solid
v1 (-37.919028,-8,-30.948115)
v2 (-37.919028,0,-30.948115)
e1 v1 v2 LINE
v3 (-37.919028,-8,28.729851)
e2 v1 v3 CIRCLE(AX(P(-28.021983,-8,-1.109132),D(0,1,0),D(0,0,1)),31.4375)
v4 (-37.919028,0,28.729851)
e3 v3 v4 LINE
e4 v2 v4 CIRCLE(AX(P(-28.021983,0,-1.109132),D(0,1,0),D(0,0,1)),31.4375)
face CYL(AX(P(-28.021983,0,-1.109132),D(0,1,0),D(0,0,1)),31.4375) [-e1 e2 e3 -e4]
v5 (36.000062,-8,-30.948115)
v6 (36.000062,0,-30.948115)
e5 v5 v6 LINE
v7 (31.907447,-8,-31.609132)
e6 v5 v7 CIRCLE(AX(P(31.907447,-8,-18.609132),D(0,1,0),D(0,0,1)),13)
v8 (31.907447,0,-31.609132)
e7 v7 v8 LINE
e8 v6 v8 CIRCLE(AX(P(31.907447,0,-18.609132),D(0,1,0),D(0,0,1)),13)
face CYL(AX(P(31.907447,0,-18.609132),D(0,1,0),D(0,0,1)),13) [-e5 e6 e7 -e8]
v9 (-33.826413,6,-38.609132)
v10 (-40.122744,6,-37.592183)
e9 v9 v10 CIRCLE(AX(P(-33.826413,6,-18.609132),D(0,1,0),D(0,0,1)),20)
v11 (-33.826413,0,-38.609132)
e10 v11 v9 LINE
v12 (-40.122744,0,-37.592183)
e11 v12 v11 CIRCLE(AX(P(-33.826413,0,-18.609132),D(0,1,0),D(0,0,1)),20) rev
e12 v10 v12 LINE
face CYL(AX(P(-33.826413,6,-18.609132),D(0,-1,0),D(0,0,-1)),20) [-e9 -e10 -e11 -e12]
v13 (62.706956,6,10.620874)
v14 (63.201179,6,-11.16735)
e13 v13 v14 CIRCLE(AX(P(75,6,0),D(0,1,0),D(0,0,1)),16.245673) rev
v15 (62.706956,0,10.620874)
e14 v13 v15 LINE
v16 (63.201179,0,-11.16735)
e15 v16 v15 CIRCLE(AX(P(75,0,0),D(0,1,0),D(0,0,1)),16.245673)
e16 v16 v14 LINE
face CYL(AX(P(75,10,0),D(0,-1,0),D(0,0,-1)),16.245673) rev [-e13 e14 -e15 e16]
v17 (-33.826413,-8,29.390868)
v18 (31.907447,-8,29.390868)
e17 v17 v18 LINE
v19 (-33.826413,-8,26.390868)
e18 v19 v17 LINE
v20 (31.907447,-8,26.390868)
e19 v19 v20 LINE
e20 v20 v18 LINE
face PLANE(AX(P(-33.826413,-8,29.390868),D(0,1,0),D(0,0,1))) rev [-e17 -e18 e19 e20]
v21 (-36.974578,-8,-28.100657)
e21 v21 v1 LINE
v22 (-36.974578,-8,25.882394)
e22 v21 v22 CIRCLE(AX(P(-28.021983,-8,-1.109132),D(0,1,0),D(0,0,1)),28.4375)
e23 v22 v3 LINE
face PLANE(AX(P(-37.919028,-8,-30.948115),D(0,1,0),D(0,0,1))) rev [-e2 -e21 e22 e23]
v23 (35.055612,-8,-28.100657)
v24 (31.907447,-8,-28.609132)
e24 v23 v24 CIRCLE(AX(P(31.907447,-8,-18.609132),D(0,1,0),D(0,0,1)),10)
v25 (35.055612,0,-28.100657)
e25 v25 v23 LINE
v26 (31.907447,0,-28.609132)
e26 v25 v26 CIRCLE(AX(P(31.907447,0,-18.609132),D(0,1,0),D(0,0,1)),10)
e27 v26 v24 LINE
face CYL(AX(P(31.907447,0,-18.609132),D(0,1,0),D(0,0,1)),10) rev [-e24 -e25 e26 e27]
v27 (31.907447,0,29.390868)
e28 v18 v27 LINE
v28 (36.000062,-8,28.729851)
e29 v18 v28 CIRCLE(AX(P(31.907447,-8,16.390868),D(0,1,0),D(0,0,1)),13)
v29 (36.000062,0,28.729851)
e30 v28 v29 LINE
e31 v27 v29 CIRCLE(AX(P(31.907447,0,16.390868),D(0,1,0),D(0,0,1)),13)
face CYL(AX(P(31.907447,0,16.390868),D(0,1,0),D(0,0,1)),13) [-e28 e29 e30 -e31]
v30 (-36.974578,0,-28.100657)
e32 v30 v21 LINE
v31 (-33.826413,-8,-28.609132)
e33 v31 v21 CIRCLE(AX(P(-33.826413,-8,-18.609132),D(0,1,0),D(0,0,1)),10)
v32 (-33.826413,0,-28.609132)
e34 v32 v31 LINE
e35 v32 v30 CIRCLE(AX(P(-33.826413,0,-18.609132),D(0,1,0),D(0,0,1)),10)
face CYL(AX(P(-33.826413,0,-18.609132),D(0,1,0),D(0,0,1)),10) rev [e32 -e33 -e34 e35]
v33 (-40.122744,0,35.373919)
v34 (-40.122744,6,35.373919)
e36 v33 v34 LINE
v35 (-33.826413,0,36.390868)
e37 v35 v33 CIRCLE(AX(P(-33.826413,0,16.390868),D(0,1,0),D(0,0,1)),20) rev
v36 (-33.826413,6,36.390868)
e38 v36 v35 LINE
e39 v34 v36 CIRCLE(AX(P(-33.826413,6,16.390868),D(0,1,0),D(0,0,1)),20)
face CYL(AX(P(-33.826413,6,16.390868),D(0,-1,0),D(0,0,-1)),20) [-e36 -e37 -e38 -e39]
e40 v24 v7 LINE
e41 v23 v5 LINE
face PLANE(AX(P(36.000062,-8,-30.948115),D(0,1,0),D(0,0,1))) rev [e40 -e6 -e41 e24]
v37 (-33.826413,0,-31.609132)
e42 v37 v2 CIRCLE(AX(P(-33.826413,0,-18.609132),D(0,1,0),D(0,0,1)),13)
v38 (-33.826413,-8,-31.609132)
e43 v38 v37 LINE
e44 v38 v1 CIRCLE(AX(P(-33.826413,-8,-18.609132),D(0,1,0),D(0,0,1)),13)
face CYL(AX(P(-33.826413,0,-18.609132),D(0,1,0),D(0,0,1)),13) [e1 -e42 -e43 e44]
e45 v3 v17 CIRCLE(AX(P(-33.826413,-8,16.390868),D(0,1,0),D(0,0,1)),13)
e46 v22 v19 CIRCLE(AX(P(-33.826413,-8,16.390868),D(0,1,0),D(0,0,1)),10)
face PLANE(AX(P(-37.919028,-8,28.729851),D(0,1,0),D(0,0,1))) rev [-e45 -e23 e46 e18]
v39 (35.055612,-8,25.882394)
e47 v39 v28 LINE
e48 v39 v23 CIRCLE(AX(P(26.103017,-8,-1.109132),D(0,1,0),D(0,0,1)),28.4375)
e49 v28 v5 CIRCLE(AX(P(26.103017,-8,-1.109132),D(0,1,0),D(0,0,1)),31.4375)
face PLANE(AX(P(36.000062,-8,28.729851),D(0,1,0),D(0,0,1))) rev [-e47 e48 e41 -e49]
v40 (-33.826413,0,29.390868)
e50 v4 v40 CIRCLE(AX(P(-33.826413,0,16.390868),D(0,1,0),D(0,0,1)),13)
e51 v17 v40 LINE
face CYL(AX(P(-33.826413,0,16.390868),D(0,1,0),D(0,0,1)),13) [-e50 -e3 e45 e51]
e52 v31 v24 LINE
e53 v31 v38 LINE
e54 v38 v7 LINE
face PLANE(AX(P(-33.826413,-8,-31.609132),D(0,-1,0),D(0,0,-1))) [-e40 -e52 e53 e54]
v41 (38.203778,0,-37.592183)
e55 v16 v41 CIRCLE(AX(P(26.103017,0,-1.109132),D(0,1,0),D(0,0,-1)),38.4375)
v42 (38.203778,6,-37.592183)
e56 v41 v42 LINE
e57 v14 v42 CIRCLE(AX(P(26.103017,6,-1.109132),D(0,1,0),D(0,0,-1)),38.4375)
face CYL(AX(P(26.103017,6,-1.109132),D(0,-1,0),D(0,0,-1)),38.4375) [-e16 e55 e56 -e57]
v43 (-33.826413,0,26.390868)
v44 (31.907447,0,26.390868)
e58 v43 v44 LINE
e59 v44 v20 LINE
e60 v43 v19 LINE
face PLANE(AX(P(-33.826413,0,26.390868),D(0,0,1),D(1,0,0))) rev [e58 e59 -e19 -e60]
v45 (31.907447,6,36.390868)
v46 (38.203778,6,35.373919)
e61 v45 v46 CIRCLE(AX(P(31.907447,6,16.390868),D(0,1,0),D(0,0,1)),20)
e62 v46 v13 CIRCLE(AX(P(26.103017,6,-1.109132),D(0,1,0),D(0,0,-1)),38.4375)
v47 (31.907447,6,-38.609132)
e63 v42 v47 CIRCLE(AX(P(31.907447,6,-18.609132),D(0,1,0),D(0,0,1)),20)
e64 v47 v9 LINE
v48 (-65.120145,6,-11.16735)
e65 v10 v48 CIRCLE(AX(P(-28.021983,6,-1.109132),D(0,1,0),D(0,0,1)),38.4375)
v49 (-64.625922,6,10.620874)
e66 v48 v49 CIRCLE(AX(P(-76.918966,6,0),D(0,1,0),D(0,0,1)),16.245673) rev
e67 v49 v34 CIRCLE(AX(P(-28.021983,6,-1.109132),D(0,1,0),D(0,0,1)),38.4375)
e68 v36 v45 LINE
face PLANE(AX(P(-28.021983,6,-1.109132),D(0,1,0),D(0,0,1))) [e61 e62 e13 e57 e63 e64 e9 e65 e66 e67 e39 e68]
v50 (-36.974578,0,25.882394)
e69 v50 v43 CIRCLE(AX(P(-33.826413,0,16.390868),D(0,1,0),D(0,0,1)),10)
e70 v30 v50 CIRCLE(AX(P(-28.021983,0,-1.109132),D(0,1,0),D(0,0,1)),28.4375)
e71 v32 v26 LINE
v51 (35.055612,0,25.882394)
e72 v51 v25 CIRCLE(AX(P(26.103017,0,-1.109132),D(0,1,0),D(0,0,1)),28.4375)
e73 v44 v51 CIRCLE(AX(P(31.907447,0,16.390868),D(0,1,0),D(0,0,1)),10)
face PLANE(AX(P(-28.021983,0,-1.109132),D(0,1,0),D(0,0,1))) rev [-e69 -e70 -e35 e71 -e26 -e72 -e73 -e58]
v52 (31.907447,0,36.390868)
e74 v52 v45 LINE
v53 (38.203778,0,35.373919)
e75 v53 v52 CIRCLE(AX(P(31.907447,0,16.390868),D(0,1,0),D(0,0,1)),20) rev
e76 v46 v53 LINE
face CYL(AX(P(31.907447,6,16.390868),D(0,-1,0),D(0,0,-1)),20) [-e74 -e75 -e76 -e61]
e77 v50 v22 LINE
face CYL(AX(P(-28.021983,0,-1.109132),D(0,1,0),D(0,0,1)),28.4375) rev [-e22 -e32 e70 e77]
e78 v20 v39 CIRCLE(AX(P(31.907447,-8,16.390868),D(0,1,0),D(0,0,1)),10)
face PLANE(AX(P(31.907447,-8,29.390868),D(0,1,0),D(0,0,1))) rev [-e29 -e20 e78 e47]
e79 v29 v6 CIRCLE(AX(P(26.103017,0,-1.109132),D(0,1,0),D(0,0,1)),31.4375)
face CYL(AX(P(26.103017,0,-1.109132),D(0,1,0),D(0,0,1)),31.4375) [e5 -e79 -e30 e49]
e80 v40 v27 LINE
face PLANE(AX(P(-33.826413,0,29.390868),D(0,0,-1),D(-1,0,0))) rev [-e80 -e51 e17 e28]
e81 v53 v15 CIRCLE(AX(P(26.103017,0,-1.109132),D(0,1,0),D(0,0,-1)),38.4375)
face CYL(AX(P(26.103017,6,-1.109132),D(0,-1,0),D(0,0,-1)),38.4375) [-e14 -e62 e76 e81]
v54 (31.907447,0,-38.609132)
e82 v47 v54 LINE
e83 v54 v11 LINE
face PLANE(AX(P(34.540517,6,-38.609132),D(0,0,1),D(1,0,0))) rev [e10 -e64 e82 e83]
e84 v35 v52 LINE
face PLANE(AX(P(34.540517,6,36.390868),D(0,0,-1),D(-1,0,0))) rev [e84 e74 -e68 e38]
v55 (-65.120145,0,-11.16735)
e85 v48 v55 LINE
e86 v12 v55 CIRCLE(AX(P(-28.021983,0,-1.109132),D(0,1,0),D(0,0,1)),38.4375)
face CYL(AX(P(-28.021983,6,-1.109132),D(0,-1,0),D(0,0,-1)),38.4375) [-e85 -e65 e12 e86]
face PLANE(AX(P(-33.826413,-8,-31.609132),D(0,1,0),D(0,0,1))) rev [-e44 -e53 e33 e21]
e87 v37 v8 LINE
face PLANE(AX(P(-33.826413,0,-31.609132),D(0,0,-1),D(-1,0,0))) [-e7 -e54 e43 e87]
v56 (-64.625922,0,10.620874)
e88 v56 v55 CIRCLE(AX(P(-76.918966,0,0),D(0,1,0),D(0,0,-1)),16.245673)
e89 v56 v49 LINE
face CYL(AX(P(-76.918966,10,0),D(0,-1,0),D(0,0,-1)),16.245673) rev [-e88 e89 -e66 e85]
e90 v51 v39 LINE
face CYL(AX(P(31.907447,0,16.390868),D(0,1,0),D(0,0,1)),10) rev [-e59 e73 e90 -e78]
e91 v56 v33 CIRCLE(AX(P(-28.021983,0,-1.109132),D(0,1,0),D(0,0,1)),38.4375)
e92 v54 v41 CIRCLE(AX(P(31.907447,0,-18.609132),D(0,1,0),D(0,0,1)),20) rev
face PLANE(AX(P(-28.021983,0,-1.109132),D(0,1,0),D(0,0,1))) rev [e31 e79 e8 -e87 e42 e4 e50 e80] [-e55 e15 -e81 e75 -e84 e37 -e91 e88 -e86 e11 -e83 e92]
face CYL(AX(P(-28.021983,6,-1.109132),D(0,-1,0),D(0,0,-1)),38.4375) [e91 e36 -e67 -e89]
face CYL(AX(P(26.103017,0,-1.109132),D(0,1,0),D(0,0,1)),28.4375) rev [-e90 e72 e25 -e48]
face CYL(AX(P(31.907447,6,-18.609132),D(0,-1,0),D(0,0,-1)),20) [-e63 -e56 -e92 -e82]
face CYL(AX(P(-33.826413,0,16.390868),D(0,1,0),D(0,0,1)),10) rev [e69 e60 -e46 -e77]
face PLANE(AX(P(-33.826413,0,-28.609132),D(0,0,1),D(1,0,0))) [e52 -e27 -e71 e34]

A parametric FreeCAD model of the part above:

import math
import FreeCAD as App
import Part
import Sketcher

V = App.Vector


def edges_at(feature, points):
    """Names of the edges that pass closest to the given points."""
    edges = feature.Shape.Edges
    near = lambda p: min(range(len(edges)), key=lambda i: edges[i].distToShape(Part.Vertex(*p))[0])
    return sorted({f"Edge{near(p) + 1}" for p in points})

doc = App.newDocument("Part")
params = doc.addObject("Spreadsheet::Sheet", "Params")
for row, (alias, value) in enumerate([
    ("sketch1_width", "71 mm"),
    ("pad1_length", "6 mm"),
    ("fillet_radius", "20 mm"),
    ("sketch2_width", "8 mm"),
    ("sketch2_height", "3 mm"),
    ("sketch3_radius", "13 mm"),
    ("pocket1_length", "10 mm"),
], start=1):
    params.set(f"A{row}", alias)
    params.set(f"B{row}", "=" + value)
    params.setAlias(f"B{row}", alias)

body = doc.addObject("PartDesign::Body", "Body")

sketch1 = body.newObject("Sketcher::SketchObject", "Sketch")
sketch1.AttachmentSupport = (doc.getObject("XZ_Plane"), [""])
sketch1.MapMode = "FlatFace"
sketch1.addGeometry(Part.LineSegment(V(35, -39, 0), V(-36, -39, 0)), False)
sketch1.addGeometry(Part.ArcOfCircle(Part.Circle(V(-28, -1, 0), V(0, 0, 1), 38), math.radians(103), math.radians(257)), False)
sketch1.addGeometry(Part.LineSegment(V(-36, 36, 0), V(35, 36, 0)), False)
sketch1.addGeometry(Part.ArcOfCircle(Part.Circle(V(26, -1, 0), V(0, 0, 1), 38), math.radians(-77), math.radians(77)), False)
sketch1.addConstraint(Sketcher.Constraint("Coincident", 0, 2, 1, 2))
sketch1.addConstraint(Sketcher.Constraint("Coincident", 1, 1, 2, 1))
sketch1.addConstraint(Sketcher.Constraint("Coincident", 2, 2, 3, 2))
sketch1.addConstraint(Sketcher.Constraint("Coincident", 3, 1, 0, 1))
sketch1.addConstraint(Sketcher.Constraint("Horizontal", 0))
sketch1.addConstraint(Sketcher.Constraint("Horizontal", 2))
sketch1.addConstraint(Sketcher.Constraint("Equal", 1, 3))
sketch1.addConstraint(Sketcher.Constraint("Horizontal", 1, 3, 3, 3))
sketch1.addConstraint(Sketcher.Constraint("Vertical", 0, 2, 1, 1))
sketch1.addConstraint(Sketcher.Constraint("DistanceX", 0, 2, 0, 1, 71.0))
sketch1.addConstraint(Sketcher.Constraint("DistanceY", 0, 2, 1, 1, 75.0))
sketch1.addConstraint(Sketcher.Constraint("Radius", 1, 38.4375))
sketch1.addConstraint(Sketcher.Constraint("DistanceY", 1, 3, -1, 1, 1.109132))
sketch1.addConstraint(Sketcher.Constraint("DistanceX", 1, 3, -1, 1, 28.021983))
sketch1.setExpression("Constraints[9]", "Params.sketch1_width")
pad1 = body.newObject("PartDesign::Pad", "Pad")
pad1.Profile = sketch1
pad1.setExpression("Length", "Params.pad1_length")
pad1.Reversed = True
doc.recompute()

fillet = body.newObject("PartDesign::Fillet", "Fillet")
fillet.Base = (pad1, edges_at(pad1, [
    (-36.459, 3, -38.609),
    (34.541, 3, -38.609),
    (34.541, 3, 36.391),
    (-36.459, 3, 36.391),
]))
fillet.setExpression("Radius", "Params.fillet_radius")

sketch2 = body.newObject("Sketcher::SketchObject", "Sketch001")
sketch2.AttachmentSupport = (doc.getObject("YZ_Plane"), [""])
sketch2.MapMode = "FlatFace"
sketch2.AttachmentOffset = App.Placement(V(0, 0, 31.907447), App.Rotation())
sketch2.addGeometry(Part.LineSegment(V(0, -28.6, 0), V(-8, -28.6, 0)), False)
sketch2.addGeometry(Part.LineSegment(V(-8, -28.6, 0), V(-8, -31.6, 0)), False)
sketch2.addGeometry(Part.LineSegment(V(-8, -31.6, 0), V(0, -31.6, 0)), False)
sketch2.addGeometry(Part.LineSegment(V(0, -31.6, 0), V(0, -28.6, 0)), False)
sketch2.addConstraint(Sketcher.Constraint("Coincident", 0, 2, 1, 1))
sketch2.addConstraint(Sketcher.Constraint("Coincident", 1, 2, 2, 1))
sketch2.addConstraint(Sketcher.Constraint("Coincident", 2, 2, 3, 1))
sketch2.addConstraint(Sketcher.Constraint("Coincident", 3, 2, 0, 1))
sketch2.addConstraint(Sketcher.Constraint("Horizontal", 0))
sketch2.addConstraint(Sketcher.Constraint("Vertical", 1))
sketch2.addConstraint(Sketcher.Constraint("Horizontal", 2))
sketch2.addConstraint(Sketcher.Constraint("Vertical", 3))
sketch2.addConstraint(Sketcher.Constraint("PointOnObject", 2, 2, -2))
sketch2.addConstraint(Sketcher.Constraint("DistanceX", 0, 2, 0, 1, 8.0))
sketch2.addConstraint(Sketcher.Constraint("DistanceY", 1, 2, 1, 1, 3.0))
sketch2.addConstraint(Sketcher.Constraint("DistanceY", 0, 2, -1, 1, 28.609132))
sketch2.setExpression("Constraints[9]", "Params.sketch2_width")
sketch2.setExpression("Constraints[10]", "Params.sketch2_height")

sketch3 = body.newObject("Sketcher::SketchObject", "Sketch002")
sketch3.AttachmentSupport = (doc.getObject("XZ_Plane"), [""])
sketch3.MapMode = "FlatFace"
sketch3.addGeometry(Part.LineSegment(V(31.9, 29.4, 0), V(-33.8, 29.4, 0)), False)
sketch3.addGeometry(Part.ArcOfCircle(Part.Circle(V(-33.8, 16.4, 0), V(0, 0, 1), 13), math.radians(90), math.radians(108.35)), False)
sketch3.addGeometry(Part.ArcOfCircle(Part.Circle(V(-28, -1.1, 0), V(0, 0, 1), 31.4), math.radians(108), math.radians(252)), False)
sketch3.addGeometry(Part.ArcOfCircle(Part.Circle(V(-33.8, -18.6, 0), V(0, 0, 1), 13), math.radians(-108.35), math.radians(-90)), False)
sketch3.addGeometry(Part.LineSegment(V(-33.8, -31.6, 0), V(31.9, -31.6, 0)), False)
sketch3.addGeometry(Part.ArcOfCircle(Part.Circle(V(31.9, -18.6, 0), V(0, 0, 1), 13), math.radians(-90), math.radians(-71.65)), False)
sketch3.addGeometry(Part.ArcOfCircle(Part.Circle(V(26.1, -1.1, 0), V(0, 0, 1), 31.4), math.radians(-72), math.radians(72)), False)
sketch3.addGeometry(Part.ArcOfCircle(Part.Circle(V(31.9, 16.4, 0), V(0, 0, 1), 13), math.radians(71.65), math.radians(90)), False)
sketch3.addConstraint(Sketcher.Constraint("Tangent", 0, 2, 1, 1))
sketch3.addConstraint(Sketcher.Constraint("Tangent", 1, 2, 2, 1))
sketch3.addConstraint(Sketcher.Constraint("Tangent", 2, 2, 3, 1))
sketch3.addConstraint(Sketcher.Constraint("Tangent", 3, 2, 4, 1))
sketch3.addConstraint(Sketcher.Constraint("Tangent", 4, 2, 5, 1))
sketch3.addConstraint(Sketcher.Constraint("Tangent", 5, 2, 6, 1))
sketch3.addConstraint(Sketcher.Constraint("Tangent", 6, 2, 7, 1))
sketch3.addConstraint(Sketcher.Constraint("Tangent", 7, 2, 0, 1))
sketch3.addConstraint(Sketcher.Constraint("Horizontal", 0))
sketch3.addConstraint(Sketcher.Constraint("Horizontal", 4))
sketch3.addConstraint(Sketcher.Constraint("Equal", 1, 3))
sketch3.addConstraint(Sketcher.Constraint("Equal", 3, 5))
sketch3.addConstraint(Sketcher.Constraint("Equal", 2, 6))
sketch3.addConstraint(Sketcher.Constraint("Equal", 5, 7))
sketch3.addConstraint(Sketcher.Constraint("Horizontal", 2, 3, 6, 3))
sketch3.addConstraint(Sketcher.Constraint("Vertical", 1, 3, 3, 3))
sketch3.addConstraint(Sketcher.Constraint("Radius", 1, 13.0))
sketch3.addConstraint(Sketcher.Constraint("DistanceY", 3, 3, 1, 3, 35.0))
sketch3.addConstraint(Sketcher.Constraint("Radius", 2, 31.4375))
sketch3.addConstraint(Sketcher.Constraint("DistanceX", 2, 3, 6, 3, 54.125))
sketch3.addConstraint(Sketcher.Constraint("DistanceY", -1, 1, 1, 3, 16.390868))
sketch3.addConstraint(Sketcher.Constraint("DistanceX", -1, 1, 5, 2, 36.000062))
sketch3.setExpression("Constraints[16]", "Params.sketch3_radius")
doc.recompute()

additivepipe = body.newObject("PartDesign::AdditivePipe", "AdditivePipe")
additivepipe.Profile = sketch2
additivepipe.Spine = (sketch3, ["Edge1", "Edge2", "Edge3", "Edge4", "Edge5", "Edge6", "Edge7", "Edge8"])

sketch4 = body.newObject("Sketcher::SketchObject", "Sketch003")
sketch4.AttachmentSupport = (doc.getObject("XZ_Plane"), [""])
sketch4.MapMode = "FlatFace"
sketch4.addGeometry(Part.Circle(V(75, 0, 0), V(0, 0, 1), 16), False)
sketch4.addGeometry(Part.Circle(V(-77, 0, 0), V(0, 0, 1), 16), False)
sketch4.addConstraint(Sketcher.Constraint("Equal", 0, 1))
sketch4.addConstraint(Sketcher.Constraint("PointOnObject", 0, 3, -1))
sketch4.addConstraint(Sketcher.Constraint("PointOnObject", 1, 3, -1))
sketch4.addConstraint(Sketcher.Constraint("DistanceX", -1, 1, 0, 3, 75.0))
sketch4.addConstraint(Sketcher.Constraint("Diameter", 0, 32.491346))
sketch4.addConstraint(Sketcher.Constraint("DistanceX", 1, 3, -1, 1, 76.918966))
pocket1 = body.newObject("PartDesign::Pocket", "Pocket")
pocket1.Profile = sketch4
pocket1.setExpression("Length", "Params.pocket1_length")

doc.recompute()
